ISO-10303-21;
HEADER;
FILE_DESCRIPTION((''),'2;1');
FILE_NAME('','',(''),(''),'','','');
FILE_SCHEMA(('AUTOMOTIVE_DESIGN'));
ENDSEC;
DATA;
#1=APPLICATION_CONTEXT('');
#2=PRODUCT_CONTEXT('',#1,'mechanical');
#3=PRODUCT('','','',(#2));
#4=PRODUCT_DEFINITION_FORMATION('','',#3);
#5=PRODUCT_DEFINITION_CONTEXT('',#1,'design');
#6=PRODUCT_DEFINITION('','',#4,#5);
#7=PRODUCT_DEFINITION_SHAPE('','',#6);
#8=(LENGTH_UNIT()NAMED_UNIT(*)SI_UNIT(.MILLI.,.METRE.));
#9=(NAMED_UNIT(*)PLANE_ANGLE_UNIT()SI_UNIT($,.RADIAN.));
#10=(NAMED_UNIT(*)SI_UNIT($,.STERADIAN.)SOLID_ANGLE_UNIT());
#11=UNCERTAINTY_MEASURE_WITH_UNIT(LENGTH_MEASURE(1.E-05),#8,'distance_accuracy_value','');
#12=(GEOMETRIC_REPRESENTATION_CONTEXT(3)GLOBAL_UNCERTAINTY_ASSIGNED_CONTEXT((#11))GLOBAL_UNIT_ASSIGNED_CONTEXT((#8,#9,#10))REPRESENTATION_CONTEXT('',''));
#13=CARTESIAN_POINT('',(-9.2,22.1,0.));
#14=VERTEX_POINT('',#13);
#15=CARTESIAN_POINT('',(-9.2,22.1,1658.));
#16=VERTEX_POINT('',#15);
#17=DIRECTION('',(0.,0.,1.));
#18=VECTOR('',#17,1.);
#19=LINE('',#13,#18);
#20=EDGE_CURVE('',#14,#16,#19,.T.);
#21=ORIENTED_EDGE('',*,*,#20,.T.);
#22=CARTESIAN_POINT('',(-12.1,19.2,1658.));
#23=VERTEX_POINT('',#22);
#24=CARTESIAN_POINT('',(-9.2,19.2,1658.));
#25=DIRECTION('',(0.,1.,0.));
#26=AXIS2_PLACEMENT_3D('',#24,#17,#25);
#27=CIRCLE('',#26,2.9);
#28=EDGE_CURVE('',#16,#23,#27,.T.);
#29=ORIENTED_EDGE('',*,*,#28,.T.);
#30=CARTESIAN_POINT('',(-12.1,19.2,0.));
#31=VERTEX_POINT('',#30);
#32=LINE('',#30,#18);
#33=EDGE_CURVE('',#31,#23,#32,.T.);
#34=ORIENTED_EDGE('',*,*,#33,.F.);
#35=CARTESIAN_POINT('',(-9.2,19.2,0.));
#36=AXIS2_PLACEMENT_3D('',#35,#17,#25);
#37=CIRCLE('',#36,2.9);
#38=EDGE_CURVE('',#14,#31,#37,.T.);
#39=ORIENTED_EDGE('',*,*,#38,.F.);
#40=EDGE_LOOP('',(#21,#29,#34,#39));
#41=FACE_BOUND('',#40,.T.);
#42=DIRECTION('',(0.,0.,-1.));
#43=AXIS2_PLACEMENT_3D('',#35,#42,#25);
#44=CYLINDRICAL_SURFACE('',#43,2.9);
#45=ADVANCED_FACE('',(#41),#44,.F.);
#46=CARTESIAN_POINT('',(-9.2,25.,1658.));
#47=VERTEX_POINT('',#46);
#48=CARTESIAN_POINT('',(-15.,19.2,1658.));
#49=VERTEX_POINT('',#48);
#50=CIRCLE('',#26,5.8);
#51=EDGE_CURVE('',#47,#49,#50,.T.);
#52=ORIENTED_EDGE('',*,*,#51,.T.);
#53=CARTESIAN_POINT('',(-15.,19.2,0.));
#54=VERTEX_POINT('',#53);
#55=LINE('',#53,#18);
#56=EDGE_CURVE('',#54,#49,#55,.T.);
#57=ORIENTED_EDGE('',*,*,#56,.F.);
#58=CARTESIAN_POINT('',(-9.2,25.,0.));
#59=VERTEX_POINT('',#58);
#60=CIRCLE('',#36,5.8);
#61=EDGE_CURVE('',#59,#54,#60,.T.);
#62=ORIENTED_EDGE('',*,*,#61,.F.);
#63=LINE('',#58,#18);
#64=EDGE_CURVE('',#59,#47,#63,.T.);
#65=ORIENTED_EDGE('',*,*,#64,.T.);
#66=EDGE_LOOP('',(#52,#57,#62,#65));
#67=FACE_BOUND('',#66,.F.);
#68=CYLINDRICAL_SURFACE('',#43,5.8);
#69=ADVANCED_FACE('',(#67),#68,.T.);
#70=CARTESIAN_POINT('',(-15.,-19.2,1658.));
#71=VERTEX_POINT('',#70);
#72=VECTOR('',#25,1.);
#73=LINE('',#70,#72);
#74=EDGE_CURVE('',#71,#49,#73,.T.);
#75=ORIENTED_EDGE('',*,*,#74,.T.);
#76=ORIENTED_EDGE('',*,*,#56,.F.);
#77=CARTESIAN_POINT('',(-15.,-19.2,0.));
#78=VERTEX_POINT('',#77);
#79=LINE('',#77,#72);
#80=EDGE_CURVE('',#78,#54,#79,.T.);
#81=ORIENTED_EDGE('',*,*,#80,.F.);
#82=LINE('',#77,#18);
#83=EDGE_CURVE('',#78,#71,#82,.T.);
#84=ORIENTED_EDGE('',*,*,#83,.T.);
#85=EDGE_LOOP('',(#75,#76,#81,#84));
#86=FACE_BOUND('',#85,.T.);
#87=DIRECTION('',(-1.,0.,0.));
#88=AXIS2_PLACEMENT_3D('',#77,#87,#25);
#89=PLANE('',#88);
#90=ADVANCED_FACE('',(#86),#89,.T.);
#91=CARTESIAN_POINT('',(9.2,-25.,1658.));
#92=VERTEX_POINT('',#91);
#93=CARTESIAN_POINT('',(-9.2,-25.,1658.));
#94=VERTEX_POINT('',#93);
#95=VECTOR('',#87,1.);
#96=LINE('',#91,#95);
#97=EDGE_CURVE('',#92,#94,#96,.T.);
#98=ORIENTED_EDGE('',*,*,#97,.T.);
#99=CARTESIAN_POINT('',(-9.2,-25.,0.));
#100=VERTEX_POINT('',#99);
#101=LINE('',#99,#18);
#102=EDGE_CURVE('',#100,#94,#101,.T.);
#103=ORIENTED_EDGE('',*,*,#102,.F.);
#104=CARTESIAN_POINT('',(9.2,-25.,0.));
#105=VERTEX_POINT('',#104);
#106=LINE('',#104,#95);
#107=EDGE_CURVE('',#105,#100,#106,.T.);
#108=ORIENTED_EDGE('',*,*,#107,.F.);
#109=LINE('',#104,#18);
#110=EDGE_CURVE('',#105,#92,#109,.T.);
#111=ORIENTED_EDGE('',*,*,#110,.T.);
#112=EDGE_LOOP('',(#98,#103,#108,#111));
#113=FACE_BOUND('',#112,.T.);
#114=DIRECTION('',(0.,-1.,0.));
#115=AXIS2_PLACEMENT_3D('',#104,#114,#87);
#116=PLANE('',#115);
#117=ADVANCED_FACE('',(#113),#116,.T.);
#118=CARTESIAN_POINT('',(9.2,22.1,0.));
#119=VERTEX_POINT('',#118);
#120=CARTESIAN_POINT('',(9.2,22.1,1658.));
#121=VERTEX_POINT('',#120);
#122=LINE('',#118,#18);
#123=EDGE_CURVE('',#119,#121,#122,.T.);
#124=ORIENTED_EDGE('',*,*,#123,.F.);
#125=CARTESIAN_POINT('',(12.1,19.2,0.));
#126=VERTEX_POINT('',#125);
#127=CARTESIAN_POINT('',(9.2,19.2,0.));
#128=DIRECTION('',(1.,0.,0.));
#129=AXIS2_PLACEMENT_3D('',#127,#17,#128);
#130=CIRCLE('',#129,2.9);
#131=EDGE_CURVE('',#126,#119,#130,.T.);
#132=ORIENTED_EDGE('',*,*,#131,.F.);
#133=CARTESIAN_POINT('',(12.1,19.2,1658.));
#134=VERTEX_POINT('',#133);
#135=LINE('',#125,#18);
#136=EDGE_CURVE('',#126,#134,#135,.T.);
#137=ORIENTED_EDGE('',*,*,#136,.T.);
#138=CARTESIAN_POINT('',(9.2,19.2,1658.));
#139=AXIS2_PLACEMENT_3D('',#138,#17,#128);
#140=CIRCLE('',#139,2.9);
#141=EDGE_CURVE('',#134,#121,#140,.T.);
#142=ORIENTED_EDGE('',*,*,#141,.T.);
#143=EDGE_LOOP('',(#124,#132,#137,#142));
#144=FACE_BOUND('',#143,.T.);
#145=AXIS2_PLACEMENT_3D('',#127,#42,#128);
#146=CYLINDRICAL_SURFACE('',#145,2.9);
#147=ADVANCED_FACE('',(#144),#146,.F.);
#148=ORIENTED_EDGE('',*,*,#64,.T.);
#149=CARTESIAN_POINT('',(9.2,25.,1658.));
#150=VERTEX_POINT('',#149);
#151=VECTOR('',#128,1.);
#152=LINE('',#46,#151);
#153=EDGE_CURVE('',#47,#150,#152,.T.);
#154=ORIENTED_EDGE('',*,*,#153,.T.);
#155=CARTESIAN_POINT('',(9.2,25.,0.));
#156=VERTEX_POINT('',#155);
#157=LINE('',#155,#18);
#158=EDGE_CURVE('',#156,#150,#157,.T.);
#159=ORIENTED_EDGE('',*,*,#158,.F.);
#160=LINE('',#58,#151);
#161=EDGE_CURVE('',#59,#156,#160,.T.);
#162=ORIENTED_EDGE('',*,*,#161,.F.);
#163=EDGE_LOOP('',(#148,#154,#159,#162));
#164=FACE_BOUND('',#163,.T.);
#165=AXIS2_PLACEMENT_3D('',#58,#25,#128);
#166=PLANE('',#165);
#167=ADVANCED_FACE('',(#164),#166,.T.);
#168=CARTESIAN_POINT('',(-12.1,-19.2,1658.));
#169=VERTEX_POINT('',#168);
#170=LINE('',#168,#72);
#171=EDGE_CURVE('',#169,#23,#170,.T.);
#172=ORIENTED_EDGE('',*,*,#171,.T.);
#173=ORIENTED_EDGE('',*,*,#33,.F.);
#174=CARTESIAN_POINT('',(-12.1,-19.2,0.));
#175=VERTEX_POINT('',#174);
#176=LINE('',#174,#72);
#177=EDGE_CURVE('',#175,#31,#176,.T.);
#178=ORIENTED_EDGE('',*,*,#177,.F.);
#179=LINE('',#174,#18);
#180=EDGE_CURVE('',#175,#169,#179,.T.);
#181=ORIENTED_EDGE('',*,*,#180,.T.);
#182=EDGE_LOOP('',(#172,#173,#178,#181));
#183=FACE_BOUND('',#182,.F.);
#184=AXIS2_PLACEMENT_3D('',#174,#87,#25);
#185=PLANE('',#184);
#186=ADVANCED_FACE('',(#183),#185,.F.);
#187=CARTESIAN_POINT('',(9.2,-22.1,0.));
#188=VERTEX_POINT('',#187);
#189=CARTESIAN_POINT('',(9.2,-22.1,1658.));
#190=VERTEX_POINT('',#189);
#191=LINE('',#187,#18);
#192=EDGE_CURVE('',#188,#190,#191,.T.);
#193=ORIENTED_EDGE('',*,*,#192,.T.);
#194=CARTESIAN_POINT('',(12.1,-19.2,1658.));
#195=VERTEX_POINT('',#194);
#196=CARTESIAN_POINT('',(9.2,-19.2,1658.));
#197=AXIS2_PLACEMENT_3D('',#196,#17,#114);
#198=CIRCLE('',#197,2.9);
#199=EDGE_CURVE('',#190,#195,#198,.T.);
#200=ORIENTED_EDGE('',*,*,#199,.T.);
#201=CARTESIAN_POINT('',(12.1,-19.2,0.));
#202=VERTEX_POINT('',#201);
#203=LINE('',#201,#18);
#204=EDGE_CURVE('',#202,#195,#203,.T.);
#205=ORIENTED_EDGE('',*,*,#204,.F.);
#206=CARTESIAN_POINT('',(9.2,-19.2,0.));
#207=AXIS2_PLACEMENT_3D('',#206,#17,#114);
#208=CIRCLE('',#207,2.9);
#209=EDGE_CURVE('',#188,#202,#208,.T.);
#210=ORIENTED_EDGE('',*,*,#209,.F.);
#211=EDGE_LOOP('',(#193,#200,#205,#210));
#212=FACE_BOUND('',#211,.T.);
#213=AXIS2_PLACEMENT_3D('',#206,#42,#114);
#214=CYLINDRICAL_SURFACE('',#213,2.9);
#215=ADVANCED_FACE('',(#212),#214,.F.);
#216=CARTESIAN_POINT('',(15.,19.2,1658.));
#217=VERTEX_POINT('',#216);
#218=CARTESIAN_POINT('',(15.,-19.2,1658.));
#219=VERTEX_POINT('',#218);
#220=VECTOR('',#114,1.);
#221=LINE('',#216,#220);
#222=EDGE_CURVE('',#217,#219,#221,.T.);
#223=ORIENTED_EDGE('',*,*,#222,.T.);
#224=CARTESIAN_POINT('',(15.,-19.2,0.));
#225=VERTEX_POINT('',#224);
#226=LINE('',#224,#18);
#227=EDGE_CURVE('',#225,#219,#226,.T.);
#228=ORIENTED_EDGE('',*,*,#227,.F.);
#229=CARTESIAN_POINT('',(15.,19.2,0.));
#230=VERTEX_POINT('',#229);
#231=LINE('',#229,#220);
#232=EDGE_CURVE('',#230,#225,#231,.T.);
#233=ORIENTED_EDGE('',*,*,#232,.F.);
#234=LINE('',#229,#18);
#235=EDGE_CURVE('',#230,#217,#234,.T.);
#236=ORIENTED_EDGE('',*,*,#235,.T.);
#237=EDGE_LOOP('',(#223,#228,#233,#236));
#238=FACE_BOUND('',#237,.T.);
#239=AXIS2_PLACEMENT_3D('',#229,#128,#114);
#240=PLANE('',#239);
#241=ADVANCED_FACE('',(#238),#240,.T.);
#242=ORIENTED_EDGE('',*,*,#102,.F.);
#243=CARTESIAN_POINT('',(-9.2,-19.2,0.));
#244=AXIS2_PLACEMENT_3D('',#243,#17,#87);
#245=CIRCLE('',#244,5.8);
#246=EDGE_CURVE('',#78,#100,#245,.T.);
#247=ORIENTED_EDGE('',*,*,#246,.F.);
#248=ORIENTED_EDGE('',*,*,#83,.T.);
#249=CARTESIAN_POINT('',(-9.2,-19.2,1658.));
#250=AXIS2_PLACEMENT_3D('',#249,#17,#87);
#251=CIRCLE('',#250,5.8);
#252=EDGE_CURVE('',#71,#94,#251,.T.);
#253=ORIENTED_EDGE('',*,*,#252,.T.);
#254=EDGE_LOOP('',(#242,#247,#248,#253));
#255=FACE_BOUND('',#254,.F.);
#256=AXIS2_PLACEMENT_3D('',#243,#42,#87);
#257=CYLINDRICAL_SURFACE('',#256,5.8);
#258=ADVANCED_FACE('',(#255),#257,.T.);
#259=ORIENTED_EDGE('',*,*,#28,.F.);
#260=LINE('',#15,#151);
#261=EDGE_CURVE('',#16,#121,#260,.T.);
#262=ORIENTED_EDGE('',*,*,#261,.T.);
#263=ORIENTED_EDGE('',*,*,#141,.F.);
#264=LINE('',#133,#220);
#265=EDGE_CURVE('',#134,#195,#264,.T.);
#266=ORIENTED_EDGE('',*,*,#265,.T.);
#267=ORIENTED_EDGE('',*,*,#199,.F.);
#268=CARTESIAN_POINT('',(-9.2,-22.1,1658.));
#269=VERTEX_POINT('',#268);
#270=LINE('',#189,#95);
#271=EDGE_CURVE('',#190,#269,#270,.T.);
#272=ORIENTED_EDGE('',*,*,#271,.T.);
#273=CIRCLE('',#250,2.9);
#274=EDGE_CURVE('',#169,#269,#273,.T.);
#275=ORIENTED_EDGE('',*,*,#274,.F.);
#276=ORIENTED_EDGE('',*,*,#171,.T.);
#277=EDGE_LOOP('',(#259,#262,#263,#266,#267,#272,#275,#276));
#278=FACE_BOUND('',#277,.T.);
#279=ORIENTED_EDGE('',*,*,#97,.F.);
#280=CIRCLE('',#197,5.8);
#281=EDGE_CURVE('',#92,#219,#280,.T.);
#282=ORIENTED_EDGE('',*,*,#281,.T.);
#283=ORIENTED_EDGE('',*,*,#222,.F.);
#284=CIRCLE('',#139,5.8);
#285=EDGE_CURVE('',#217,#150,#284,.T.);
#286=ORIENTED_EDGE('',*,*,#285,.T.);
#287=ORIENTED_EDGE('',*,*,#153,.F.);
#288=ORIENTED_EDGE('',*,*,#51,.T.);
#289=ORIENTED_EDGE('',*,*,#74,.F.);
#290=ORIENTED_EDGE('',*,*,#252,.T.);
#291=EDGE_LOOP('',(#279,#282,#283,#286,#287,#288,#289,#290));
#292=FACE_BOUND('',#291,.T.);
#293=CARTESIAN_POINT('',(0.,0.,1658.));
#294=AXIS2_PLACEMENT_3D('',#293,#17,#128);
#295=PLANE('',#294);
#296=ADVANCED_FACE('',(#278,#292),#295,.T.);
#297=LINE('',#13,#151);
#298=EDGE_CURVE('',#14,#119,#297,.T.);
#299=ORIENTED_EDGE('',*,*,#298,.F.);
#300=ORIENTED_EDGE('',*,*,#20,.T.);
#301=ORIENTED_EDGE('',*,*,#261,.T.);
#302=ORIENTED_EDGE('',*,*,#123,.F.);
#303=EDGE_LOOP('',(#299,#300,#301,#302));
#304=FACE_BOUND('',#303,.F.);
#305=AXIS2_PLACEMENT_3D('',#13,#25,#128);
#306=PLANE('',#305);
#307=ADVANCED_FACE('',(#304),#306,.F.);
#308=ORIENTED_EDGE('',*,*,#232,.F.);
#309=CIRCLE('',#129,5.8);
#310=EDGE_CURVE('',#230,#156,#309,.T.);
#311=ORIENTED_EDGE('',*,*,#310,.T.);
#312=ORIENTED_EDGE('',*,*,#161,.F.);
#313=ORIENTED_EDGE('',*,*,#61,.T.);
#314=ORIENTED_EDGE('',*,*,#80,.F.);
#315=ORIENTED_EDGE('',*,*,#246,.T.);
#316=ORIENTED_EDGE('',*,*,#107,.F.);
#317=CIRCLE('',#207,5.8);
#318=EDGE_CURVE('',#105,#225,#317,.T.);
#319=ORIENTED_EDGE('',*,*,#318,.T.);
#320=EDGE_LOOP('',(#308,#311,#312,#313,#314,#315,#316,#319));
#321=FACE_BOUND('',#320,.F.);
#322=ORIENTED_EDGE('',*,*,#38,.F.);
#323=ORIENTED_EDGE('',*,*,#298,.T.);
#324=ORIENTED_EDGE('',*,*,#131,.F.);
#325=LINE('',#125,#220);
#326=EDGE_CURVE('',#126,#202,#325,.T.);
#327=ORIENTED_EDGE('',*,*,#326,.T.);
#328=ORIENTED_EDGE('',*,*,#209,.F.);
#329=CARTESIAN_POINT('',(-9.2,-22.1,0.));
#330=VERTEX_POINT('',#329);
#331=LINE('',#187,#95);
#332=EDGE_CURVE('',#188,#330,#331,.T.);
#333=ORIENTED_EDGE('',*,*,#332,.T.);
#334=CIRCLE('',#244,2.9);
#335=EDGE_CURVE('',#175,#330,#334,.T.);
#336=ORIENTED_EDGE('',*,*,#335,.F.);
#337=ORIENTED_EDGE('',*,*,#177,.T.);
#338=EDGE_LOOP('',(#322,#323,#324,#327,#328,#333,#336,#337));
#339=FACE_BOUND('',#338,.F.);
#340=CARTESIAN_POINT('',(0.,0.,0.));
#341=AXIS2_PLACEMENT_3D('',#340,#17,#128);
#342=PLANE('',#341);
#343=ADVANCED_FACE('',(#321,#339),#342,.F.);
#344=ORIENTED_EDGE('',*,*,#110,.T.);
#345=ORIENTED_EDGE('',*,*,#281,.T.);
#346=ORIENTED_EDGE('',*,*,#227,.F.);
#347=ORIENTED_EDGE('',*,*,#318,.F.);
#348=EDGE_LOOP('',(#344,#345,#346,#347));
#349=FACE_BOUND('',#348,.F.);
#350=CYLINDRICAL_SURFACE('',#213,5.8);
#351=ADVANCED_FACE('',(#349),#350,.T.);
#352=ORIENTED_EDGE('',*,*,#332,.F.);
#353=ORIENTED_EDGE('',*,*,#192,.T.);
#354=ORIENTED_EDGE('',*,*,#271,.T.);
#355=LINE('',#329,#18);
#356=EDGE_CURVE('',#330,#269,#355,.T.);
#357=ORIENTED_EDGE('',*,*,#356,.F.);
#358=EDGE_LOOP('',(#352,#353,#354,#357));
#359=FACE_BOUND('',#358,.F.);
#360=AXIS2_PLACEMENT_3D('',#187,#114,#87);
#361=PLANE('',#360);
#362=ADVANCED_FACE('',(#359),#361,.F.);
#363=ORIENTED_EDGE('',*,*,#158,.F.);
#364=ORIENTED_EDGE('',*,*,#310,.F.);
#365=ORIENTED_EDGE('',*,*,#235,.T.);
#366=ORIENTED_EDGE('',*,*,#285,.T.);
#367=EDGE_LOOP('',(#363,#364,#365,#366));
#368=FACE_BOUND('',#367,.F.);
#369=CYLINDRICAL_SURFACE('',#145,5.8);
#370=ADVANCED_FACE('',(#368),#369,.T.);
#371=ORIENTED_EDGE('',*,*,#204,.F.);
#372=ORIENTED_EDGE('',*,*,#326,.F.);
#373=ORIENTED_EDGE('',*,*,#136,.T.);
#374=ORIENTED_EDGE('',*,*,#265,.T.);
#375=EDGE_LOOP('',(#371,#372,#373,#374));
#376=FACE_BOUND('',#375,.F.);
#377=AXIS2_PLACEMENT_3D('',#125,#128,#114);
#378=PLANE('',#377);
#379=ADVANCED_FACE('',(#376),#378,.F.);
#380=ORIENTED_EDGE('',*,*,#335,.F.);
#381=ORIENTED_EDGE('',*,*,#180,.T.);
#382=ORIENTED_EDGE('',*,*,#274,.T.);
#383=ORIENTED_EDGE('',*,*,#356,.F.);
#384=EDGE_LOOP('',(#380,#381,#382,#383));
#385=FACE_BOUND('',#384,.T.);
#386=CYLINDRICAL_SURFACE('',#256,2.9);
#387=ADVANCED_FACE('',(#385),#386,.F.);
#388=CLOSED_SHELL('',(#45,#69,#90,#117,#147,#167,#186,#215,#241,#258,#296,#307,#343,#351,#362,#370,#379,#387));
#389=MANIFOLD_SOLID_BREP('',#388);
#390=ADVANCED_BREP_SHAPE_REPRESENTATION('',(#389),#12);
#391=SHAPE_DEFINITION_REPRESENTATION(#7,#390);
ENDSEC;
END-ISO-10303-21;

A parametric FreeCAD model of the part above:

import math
import FreeCAD as App
import Part
import Sketcher
from FreeCAD import Vector

doc = App.newDocument("Part")
body = doc.addObject("PartDesign::Body", "Body")

# Sketch on XY plane
sketch1 = doc.addObject("Sketcher::SketchObject", "Sketch")
body.addObject(sketch1)
sketch1.AttachmentSupport = (doc.XY_Plane, [""])
sketch1.MapMode = "FlatFace"
sketch1.addGeometry(Part.LineSegment(Vector(9.2, 25, 0), Vector(-9.2, 25, 0)), False)
sketch1.addGeometry(Part.ArcOfCircle(Part.Circle(Vector(-9.2, 19.2, 0), Vector(0, 0, 1), 5.8), math.radians(90), math.radians(180)), False)
sketch1.addGeometry(Part.LineSegment(Vector(-15, 19.2, 0), Vector(-15, -19.2, 0)), False)
sketch1.addGeometry(Part.ArcOfCircle(Part.Circle(Vector(-9.2, -19.2, 0), Vector(0, 0, 1), 5.8), math.radians(180), math.radians(270)), False)
sketch1.addGeometry(Part.LineSegment(Vector(-9.2, -25, 0), Vector(9.2, -25, 0)), False)
sketch1.addGeometry(Part.ArcOfCircle(Part.Circle(Vector(9.2, -19.2, 0), Vector(0, 0, 1), 5.8), math.radians(-90), math.radians(0)), False)
sketch1.addGeometry(Part.LineSegment(Vector(15, -19.2, 0), Vector(15, 19.2, 0)), False)
sketch1.addGeometry(Part.ArcOfCircle(Part.Circle(Vector(9.2, 19.2, 0), Vector(0, 0, 1), 5.8), math.radians(0), math.radians(90)), False)
sketch1.addGeometry(Part.ArcOfCircle(Part.Circle(Vector(-9.2, 19.2, 0), Vector(0, 0, 1), 2.9), math.radians(90), math.radians(180)), False)
sketch1.addGeometry(Part.LineSegment(Vector(-9.2, 22.1, 0), Vector(9.2, 22.1, 0)), False)
sketch1.addGeometry(Part.ArcOfCircle(Part.Circle(Vector(9.2, 19.2, 0), Vector(0, 0, 1), 2.9), math.radians(0), math.radians(90)), False)
sketch1.addGeometry(Part.LineSegment(Vector(12.1, 19.2, 0), Vector(12.1, -19.2, 0)), False)
sketch1.addGeometry(Part.ArcOfCircle(Part.Circle(Vector(9.2, -19.2, 0), Vector(0, 0, 1), 2.9), math.radians(-90), math.radians(0)), False)
sketch1.addGeometry(Part.LineSegment(Vector(9.2, -22.1, 0), Vector(-9.2, -22.1, 0)), False)
sketch1.addGeometry(Part.ArcOfCircle(Part.Circle(Vector(-9.2, -19.2, 0), Vector(0, 0, 1), 2.9), math.radians(180), math.radians(270)), False)
sketch1.addGeometry(Part.LineSegment(Vector(-12.1, -19.2, 0), Vector(-12.1, 19.2, 0)), False)
sketch1.addConstraint(Sketcher.Constraint("Tangent", 0, 2, 1, 1))
sketch1.addConstraint(Sketcher.Constraint("Tangent", 1, 2, 2, 1))
sketch1.addConstraint(Sketcher.Constraint("Tangent", 2, 2, 3, 1))
sketch1.addConstraint(Sketcher.Constraint("Tangent", 3, 2, 4, 1))
sketch1.addConstraint(Sketcher.Constraint("Tangent", 4, 2, 5, 1))
sketch1.addConstraint(Sketcher.Constraint("Tangent", 5, 2, 6, 1))
sketch1.addConstraint(Sketcher.Constraint("Tangent", 6, 2, 7, 1))
sketch1.addConstraint(Sketcher.Constraint("Tangent", 7, 2, 0, 1))
sketch1.addConstraint(Sketcher.Constraint("Tangent", 8, 1, 9, 1))
sketch1.addConstraint(Sketcher.Constraint("Tangent", 9, 2, 10, 2))
sketch1.addConstraint(Sketcher.Constraint("Tangent", 10, 1, 11, 1))
sketch1.addConstraint(Sketcher.Constraint("Tangent", 11, 2, 12, 2))
sketch1.addConstraint(Sketcher.Constraint("Tangent", 12, 1, 13, 1))
sketch1.addConstraint(Sketcher.Constraint("Tangent", 13, 2, 14, 2))
sketch1.addConstraint(Sketcher.Constraint("Tangent", 14, 1, 15, 1))
sketch1.addConstraint(Sketcher.Constraint("Tangent", 15, 2, 8, 2))
sketch1.addConstraint(Sketcher.Constraint("Horizontal", 0))
sketch1.addConstraint(Sketcher.Constraint("Vertical", 2))
sketch1.addConstraint(Sketcher.Constraint("Horizontal", 4))
sketch1.addConstraint(Sketcher.Constraint("Vertical", 6))
sketch1.addConstraint(Sketcher.Constraint("Horizontal", 9))
sketch1.addConstraint(Sketcher.Constraint("Vertical", 11))
sketch1.addConstraint(Sketcher.Constraint("Horizontal", 13))
sketch1.addConstraint(Sketcher.Constraint("Vertical", 15))
sketch1.addConstraint(Sketcher.Constraint("Coincident", 8, 3, 1, 3))
sketch1.addConstraint(Sketcher.Constraint("Coincident", 10, 3, 7, 3))
sketch1.addConstraint(Sketcher.Constraint("Coincident", 12, 3, 5, 3))
sketch1.addConstraint(Sketcher.Constraint("Equal", 1, 3))
sketch1.addConstraint(Sketcher.Constraint("Equal", 3, 5))
sketch1.addConstraint(Sketcher.Constraint("Equal", 5, 7))
sketch1.addConstraint(Sketcher.Constraint("Equal", 12, 14))
sketch1.addConstraint(Sketcher.Constraint("Symmetric", 1, 3, 5, 3, -1, 1))
sketch1.addConstraint(Sketcher.Constraint("Radius", 1, 5.8))
sketch1.addConstraint(Sketcher.Constraint("Radius", 8, 2.9))
sketch1.addConstraint(Sketcher.Constraint("DistanceY", -1, 1, 0, 2, 25.0))
sketch1.addConstraint(Sketcher.Constraint("DistanceX", 1, 2, -1, 1, 15.0))
pad1 = doc.addObject("PartDesign::Pad", "Pad")
body.addObject(pad1)
pad1.Profile = sketch1
pad1.Length = 1658

doc.recompute()
